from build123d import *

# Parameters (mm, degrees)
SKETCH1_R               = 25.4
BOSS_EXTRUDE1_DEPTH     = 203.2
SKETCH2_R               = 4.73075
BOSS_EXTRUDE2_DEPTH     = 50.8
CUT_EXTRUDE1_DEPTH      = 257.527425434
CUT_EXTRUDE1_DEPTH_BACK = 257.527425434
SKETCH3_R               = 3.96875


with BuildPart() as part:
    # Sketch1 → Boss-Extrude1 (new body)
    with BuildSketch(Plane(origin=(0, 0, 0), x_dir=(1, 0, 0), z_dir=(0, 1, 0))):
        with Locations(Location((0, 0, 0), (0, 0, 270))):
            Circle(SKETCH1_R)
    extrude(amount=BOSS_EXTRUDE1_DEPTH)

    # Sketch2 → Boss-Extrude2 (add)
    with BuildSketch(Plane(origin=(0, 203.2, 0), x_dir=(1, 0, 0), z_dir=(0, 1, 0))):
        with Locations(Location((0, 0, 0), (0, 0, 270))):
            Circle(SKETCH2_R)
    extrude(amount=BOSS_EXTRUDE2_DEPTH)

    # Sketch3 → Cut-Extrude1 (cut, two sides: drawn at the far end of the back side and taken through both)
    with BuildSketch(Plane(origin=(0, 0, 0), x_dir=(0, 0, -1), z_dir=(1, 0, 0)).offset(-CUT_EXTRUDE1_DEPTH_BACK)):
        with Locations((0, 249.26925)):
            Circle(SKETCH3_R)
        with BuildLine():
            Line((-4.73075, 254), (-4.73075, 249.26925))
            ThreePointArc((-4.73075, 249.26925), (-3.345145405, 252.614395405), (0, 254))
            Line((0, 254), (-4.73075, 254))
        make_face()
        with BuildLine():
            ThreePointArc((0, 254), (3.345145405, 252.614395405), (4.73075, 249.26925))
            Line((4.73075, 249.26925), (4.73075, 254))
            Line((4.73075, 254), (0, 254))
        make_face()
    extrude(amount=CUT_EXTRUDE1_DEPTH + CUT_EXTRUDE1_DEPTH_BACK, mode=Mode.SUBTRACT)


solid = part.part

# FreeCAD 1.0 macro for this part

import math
import FreeCAD as App
import Part
import Sketcher
from FreeCAD import Vector
Q = App.Units.Quantity

doc = App.newDocument("Part")
body = doc.addObject("PartDesign::Body", "Body")

sketch1 = body.newObject("Sketcher::SketchObject", "Sketch")
sketch1.AttachmentSupport = (doc.getObject("XZ_Plane"), [""])
sketch1.MapMode = "FlatFace"
sketch1.addGeometry(Part.Circle(Vector(0, 0, 0), Vector(0, 0, 1), 25.4), False)
sketch1.addConstraint([
    Sketcher.Constraint("Coincident", 0, 3, -1, 1),
    Sketcher.Constraint("Diameter", 0, Q("2 in")),
])
pad1 = body.newObject("PartDesign::Pad", "Pad")
pad1.Profile = sketch1
pad1.Length = Q("8 in")
pad1.Reversed = True

sketch2 = body.newObject("Sketcher::SketchObject", "Sketch001")
sketch2.AttachmentSupport = (doc.getObject("XZ_Plane"), [""])
sketch2.MapMode = "FlatFace"
sketch2.AttachmentOffset = App.Placement(Vector(0, 0, -8 * 25.4), App.Rotation())
sketch2.addGeometry(Part.Circle(Vector(0, 0, 0), Vector(0, 0, 1), 4.73075), False)
sketch2.addConstraint([
    Sketcher.Constraint("Coincident", 0, 3, -1, 1),
    Sketcher.Constraint("Diameter", 0, Q("0.3725 in")),
])
pad2 = body.newObject("PartDesign::Pad", "Pad001")
pad2.Profile = sketch2
pad2.Length = Q("2 in")
pad2.Reversed = True

sketch3 = body.newObject("Sketcher::SketchObject", "Sketch002")
sketch3.AttachmentSupport = (doc.getObject("YZ_Plane"), [""])
sketch3.MapMode = "FlatFace"
sketch3.addGeometry([
    Part.Circle(Vector(249.26925, 0, 0), Vector(0, 0, 1), 3.96875),
    Part.LineSegment(Vector(254, 4.73075, 0), Vector(249.26925, 4.73075, 0)),
    Part.ArcOfCircle(Part.Circle(Vector(249.26925, 0, 0), Vector(0, 0, 1), 4.73075), math.radians(0), math.radians(90)),
    Part.LineSegment(Vector(254, 0, 0), Vector(254, 4.73075, 0)),
    Part.ArcOfCircle(Part.Circle(Vector(249.26925, 0, 0), Vector(0, 0, 1), 4.73075), math.radians(-90), math.radians(0)),
    Part.LineSegment(Vector(249.26925, -4.73075, 0), Vector(254, -4.73075, 0)),
    Part.LineSegment(Vector(254, -4.73075, 0), Vector(254, 0, 0)),
], False)
sketch3.addConstraint([
    Sketcher.Constraint("Tangent", 1, 2, 2, 2),
    Sketcher.Constraint("Tangent", 2, 1, 3, 1),
    Sketcher.Constraint("Coincident", 3, 2, 1, 1),
    Sketcher.Constraint("Tangent", 4, 1, 5, 1),
    Sketcher.Constraint("Coincident", 5, 2, 6, 1),
    Sketcher.Constraint("Tangent", 6, 2, 4, 2),
    Sketcher.Constraint("Horizontal", 1),
    Sketcher.Constraint("Vertical", 3),
    Sketcher.Constraint("Horizontal", 5),
    Sketcher.Constraint("Vertical", 6),
    Sketcher.Constraint("Coincident", 2, 3, 0, 3),
    Sketcher.Constraint("Coincident", 4, 3, 0, 3),
    Sketcher.Constraint("Equal", 2, 4),
    Sketcher.Constraint("PointOnObject", 0, 3, -1),
    Sketcher.Constraint("Diameter", 0, Q("0.3125 in")),
    Sketcher.Constraint("DistanceX", -1, 1, 2, 1, Q("10 in")),
    Sketcher.Constraint("Radius", 2, 4.73075),
])
pocket1 = body.newObject("PartDesign::Pocket", "Pocket")
pocket1.Profile = sketch3
pocket1.Type = "ThroughAll"
pocket1.Midplane = True

doc.recompute()
